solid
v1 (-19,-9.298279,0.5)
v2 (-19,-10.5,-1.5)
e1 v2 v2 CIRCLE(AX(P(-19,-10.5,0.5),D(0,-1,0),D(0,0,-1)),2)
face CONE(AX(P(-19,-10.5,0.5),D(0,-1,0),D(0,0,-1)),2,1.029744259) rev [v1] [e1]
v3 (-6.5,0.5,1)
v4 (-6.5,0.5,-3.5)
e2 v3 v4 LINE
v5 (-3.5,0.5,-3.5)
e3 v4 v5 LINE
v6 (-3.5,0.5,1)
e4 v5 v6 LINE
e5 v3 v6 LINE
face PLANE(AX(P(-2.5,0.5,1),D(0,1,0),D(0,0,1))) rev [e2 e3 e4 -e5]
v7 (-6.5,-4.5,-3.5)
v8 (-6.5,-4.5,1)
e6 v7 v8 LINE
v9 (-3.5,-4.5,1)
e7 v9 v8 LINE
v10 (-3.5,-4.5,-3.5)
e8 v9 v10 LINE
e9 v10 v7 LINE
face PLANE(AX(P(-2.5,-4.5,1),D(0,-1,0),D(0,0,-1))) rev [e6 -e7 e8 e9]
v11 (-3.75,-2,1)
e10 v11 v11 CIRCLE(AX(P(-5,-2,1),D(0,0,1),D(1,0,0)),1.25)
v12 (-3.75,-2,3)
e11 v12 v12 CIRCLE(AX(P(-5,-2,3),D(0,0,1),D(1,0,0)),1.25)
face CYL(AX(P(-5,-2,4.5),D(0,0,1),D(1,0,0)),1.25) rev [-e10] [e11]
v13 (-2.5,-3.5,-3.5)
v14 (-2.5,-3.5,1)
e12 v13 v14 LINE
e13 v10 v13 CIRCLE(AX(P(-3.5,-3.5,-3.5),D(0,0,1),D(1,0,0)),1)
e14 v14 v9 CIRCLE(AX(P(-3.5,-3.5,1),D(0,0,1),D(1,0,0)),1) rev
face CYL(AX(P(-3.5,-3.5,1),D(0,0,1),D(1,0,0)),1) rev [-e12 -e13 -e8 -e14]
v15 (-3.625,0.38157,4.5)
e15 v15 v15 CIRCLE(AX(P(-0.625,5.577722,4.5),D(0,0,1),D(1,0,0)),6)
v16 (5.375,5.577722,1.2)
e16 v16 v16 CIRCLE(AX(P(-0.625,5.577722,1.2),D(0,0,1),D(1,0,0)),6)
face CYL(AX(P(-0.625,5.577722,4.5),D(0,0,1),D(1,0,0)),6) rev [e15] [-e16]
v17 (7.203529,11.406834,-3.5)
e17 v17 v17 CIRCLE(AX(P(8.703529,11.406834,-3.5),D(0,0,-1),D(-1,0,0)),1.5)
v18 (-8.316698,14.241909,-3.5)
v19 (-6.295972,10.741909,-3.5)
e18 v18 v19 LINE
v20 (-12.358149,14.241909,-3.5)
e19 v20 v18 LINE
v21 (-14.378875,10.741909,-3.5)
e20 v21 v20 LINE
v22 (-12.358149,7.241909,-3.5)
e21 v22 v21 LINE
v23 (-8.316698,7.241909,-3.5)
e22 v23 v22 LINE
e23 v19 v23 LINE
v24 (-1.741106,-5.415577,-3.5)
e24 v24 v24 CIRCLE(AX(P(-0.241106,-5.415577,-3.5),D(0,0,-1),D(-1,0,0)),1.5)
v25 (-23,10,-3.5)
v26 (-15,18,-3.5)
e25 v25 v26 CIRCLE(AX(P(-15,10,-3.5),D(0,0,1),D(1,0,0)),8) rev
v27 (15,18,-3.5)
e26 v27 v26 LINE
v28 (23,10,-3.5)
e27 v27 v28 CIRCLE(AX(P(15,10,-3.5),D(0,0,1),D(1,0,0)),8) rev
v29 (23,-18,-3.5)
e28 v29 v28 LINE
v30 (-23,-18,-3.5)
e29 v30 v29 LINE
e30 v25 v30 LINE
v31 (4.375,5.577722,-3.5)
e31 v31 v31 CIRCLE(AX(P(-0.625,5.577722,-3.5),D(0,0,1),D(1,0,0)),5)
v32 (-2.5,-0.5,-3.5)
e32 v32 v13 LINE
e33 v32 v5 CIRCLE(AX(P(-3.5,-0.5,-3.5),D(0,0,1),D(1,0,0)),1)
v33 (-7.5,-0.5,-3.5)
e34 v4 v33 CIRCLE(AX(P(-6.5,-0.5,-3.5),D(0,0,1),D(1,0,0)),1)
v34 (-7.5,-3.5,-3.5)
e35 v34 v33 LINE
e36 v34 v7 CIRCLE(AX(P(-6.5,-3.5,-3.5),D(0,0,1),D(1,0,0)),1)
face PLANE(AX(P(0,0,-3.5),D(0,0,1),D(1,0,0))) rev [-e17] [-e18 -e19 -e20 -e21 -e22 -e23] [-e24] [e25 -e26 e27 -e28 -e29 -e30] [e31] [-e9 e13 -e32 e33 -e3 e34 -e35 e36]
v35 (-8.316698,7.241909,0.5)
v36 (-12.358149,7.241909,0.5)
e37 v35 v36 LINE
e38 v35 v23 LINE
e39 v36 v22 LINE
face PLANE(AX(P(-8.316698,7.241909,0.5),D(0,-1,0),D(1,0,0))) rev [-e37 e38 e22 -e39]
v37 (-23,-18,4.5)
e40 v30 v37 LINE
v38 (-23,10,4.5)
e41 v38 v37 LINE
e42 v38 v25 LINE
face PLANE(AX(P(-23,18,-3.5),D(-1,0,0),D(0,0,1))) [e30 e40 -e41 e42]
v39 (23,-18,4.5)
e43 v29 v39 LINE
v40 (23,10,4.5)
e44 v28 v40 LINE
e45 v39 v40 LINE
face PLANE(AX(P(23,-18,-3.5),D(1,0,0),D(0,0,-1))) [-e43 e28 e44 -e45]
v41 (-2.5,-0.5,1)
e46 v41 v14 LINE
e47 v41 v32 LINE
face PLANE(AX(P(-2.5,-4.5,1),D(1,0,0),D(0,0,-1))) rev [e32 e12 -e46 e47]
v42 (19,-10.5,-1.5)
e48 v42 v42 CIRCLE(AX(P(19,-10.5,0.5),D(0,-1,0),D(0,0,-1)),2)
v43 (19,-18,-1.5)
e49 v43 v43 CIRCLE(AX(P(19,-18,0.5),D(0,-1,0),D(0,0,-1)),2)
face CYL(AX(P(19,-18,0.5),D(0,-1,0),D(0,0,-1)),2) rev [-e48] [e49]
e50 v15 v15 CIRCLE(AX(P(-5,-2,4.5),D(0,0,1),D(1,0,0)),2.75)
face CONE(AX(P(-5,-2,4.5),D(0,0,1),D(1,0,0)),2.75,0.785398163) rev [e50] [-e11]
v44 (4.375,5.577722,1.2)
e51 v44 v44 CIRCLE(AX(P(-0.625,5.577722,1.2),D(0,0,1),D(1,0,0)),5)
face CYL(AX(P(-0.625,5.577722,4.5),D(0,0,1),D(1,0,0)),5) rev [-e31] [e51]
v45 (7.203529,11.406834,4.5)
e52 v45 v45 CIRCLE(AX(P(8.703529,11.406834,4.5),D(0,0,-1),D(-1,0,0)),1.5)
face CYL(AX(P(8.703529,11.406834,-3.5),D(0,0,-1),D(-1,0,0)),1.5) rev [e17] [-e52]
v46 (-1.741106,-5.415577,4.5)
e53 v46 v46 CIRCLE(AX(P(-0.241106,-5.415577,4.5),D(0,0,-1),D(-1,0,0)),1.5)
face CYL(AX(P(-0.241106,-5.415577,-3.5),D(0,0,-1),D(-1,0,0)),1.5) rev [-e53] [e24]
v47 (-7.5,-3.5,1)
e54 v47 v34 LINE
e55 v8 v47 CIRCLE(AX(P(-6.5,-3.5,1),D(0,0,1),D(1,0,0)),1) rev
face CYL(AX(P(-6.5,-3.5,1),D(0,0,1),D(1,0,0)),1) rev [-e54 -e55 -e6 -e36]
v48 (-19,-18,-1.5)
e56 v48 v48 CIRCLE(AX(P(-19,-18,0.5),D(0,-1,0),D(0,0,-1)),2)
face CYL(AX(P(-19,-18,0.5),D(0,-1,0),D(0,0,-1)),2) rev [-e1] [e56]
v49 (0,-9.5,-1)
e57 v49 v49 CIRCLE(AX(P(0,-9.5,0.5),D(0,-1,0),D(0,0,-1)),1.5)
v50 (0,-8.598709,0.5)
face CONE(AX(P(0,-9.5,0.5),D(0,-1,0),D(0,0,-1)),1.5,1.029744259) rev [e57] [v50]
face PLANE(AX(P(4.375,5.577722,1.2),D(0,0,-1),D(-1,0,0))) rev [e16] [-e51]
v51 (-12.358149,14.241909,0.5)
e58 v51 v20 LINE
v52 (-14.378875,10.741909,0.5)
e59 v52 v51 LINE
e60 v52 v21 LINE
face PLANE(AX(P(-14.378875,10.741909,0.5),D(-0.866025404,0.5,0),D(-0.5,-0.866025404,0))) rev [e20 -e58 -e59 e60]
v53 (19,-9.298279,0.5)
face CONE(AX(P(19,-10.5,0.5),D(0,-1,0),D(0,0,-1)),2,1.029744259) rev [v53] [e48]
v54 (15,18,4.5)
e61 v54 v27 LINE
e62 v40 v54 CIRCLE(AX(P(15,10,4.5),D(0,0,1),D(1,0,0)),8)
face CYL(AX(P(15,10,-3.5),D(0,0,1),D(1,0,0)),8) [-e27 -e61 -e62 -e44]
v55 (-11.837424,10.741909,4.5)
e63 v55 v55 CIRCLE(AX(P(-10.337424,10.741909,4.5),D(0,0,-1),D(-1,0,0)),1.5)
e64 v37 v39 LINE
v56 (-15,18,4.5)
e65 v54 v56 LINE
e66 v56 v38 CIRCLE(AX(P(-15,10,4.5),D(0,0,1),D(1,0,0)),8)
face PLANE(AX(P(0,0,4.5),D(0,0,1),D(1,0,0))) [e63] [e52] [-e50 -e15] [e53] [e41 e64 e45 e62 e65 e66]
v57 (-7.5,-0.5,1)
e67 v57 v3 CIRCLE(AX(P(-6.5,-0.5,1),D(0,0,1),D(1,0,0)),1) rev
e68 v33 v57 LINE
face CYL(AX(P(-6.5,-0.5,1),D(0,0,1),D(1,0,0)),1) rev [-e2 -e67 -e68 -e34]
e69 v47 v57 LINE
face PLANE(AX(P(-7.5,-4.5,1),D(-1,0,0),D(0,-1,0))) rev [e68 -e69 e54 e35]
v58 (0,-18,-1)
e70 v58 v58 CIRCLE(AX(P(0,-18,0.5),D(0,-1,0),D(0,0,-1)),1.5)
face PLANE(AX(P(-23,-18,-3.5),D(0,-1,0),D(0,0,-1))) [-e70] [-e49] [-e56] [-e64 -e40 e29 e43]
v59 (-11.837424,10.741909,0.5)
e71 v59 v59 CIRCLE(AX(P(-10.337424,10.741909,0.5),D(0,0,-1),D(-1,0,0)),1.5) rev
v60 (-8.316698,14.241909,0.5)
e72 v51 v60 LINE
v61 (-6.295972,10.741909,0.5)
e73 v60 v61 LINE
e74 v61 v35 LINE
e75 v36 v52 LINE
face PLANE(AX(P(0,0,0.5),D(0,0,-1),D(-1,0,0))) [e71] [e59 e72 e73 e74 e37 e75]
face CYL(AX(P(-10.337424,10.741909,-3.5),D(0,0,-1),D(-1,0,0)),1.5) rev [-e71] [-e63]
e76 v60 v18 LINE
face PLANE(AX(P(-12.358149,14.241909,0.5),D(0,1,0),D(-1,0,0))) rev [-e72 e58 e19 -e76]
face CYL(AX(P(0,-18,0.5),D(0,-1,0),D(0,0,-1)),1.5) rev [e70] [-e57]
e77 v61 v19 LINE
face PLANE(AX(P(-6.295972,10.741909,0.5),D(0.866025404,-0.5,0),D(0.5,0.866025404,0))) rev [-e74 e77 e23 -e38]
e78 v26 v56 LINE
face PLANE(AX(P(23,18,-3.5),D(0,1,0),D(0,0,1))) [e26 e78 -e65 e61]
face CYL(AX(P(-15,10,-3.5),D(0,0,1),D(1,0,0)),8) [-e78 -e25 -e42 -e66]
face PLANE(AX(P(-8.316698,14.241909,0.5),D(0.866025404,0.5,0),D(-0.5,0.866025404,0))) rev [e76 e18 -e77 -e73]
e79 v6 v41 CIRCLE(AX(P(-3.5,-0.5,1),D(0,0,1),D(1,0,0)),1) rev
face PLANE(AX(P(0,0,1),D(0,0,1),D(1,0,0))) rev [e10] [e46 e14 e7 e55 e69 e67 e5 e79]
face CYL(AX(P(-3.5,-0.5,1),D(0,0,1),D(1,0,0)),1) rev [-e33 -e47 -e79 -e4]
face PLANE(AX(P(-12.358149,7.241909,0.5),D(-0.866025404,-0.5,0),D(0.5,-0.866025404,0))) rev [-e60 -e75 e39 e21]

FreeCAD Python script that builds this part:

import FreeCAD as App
import Part
import Sketcher
from FreeCAD import Vector
Q = App.Units.Quantity


def edges_at(feature, points):
    """Names of the edges that pass closest to the given points."""
    edges = feature.Shape.Edges
    near = lambda p: min(range(len(edges)), key=lambda i: edges[i].distToShape(Part.Vertex(*p))[0])
    return sorted({f"Edge{near(p) + 1}" for p in points})

doc = App.newDocument("Part")
body = doc.addObject("PartDesign::Body", "Body")

# Sketch on XY plane
sketch1 = body.newObject("Sketcher::SketchObject", "Sketch")
sketch1.AttachmentSupport = (doc.getObject("XY_Plane"), [""])
sketch1.MapMode = "FlatFace"
sketch1.AttachmentOffset = App.Placement(Vector(0, 0, 4.5), App.Rotation())
sketch1.addGeometry(Part.LineSegment(Vector(-23, 18, 0), Vector(-23, -18, 0)), False)
sketch1.addGeometry(Part.LineSegment(Vector(-23, -18, 0), Vector(23, -18, 0)), False)
sketch1.addGeometry(Part.LineSegment(Vector(23, -18, 0), Vector(23, 18, 0)), False)
sketch1.addGeometry(Part.LineSegment(Vector(23, 18, 0), Vector(-23, 18, 0)), False)
sketch1.addConstraint(Sketcher.Constraint("Coincident", 0, 2, 1, 1))
sketch1.addConstraint(Sketcher.Constraint("Coincident", 1, 2, 2, 1))
sketch1.addConstraint(Sketcher.Constraint("Coincident", 2, 2, 3, 1))
sketch1.addConstraint(Sketcher.Constraint("Coincident", 3, 2, 0, 1))
sketch1.addConstraint(Sketcher.Constraint("Vertical", 0))
sketch1.addConstraint(Sketcher.Constraint("Horizontal", 1))
sketch1.addConstraint(Sketcher.Constraint("Vertical", 2))
sketch1.addConstraint(Sketcher.Constraint("Horizontal", 3))
sketch1.addConstraint(Sketcher.Constraint("Symmetric", 0, 2, 2, 2, -1, 1))
sketch1.addConstraint(Sketcher.Constraint("DistanceX", 1, 1, 1, 2, Q("46 mm")))
sketch1.addConstraint(Sketcher.Constraint("DistanceY", 0, 2, 0, 1, Q("36 mm")))
pad1 = body.newObject("PartDesign::Pad", "Pad")
pad1.Profile = sketch1
pad1.Length = 8
pad1.Reversed = True

# Sketch on XZ plane
sketch2 = body.newObject("Sketcher::SketchObject", "Sketch001")
sketch2.AttachmentSupport = (doc.getObject("XZ_Plane"), [""])
sketch2.MapMode = "FlatFace"
sketch2.AttachmentOffset = App.Placement(Vector(0, 0, 18), App.Rotation())
sketch2.addGeometry(Part.Circle(Vector(0, 0.5, 0), Vector(0, 0, 1), 1.5), False)
sketch2.addConstraint(Sketcher.Constraint("PointOnObject", 0, 3, -2))
sketch2.addConstraint(Sketcher.Constraint("Diameter", 0, Q("3 mm")))
sketch2.addConstraint(Sketcher.Constraint("DistanceY", -1, 1, 0, 3, Q("0.5 mm")))
doc.recompute()
hole = body.newObject("PartDesign::Hole", "Hole")
hole.Profile = sketch2
hole.ThreadType = "None"
hole.Diameter = 3
hole.DepthType = "Dimension"
hole.Depth = 8.5
hole.DrillPoint = "Angled"
hole.DrillPointAngle = 118

# Sketch on XZ plane
sketch3 = body.newObject("Sketcher::SketchObject", "Sketch002")
sketch3.AttachmentSupport = (doc.getObject("XZ_Plane"), [""])
sketch3.MapMode = "FlatFace"
sketch3.AttachmentOffset = App.Placement(Vector(0, 0, 18), App.Rotation())
sketch3.addGeometry(Part.Circle(Vector(-19, 0.5, 0), Vector(0, 0, 1), 2), False)
sketch3.addGeometry(Part.Circle(Vector(19, 0.5, 0), Vector(0, 0, 1), 2), False)
sketch3.addConstraint(Sketcher.Constraint("Equal", 0, 1))
sketch3.addConstraint(Sketcher.Constraint("Symmetric", 0, 3, 1, 3, -2))
sketch3.addConstraint(Sketcher.Constraint("Diameter", 0, Q("4 mm")))
sketch3.addConstraint(Sketcher.Constraint("DistanceX", 0, 3, -1, 1, Q("19 mm")))
sketch3.addConstraint(Sketcher.Constraint("DistanceY", -1, 1, 0, 3, Q("0.5 mm")))
doc.recompute()
hole2 = body.newObject("PartDesign::Hole", "Hole001")
hole2.Profile = sketch3
hole2.ThreadType = "None"
hole2.Diameter = 4
hole2.DepthType = "Dimension"
hole2.Depth = 7.5
hole2.DrillPoint = "Angled"
hole2.DrillPointAngle = 118
doc.recompute()

fillet = body.newObject("PartDesign::Fillet", "Fillet")
fillet.Base = (hole2, edges_at(hole2, [(-23, 18, 0.5), (23, 18, 0.5)]))
fillet.Radius = 8

# Sketch on XY plane
sketch4 = body.newObject("Sketcher::SketchObject", "Sketch003")
sketch4.AttachmentSupport = (doc.getObject("XY_Plane"), [""])
sketch4.MapMode = "FlatFace"
sketch4.AttachmentOffset = App.Placement(Vector(0, 0, -3.5), App.Rotation())
sketch4.addGeometry(Part.LineSegment(Vector(-2, 0, 0), Vector(-2, -4, 0)), False)
sketch4.addGeometry(Part.LineSegment(Vector(-2, -4, 0), Vector(-8, -4, 0)), False)
sketch4.addGeometry(Part.LineSegment(Vector(-8, -4, 0), Vector(-8, 0, 0)), False)
sketch4.addGeometry(Part.LineSegment(Vector(-8, 0, 0), Vector(-2, 0, 0)), False)
sketch4.addConstraint(Sketcher.Constraint("Coincident", 0, 2, 1, 1))
sketch4.addConstraint(Sketcher.Constraint("Coincident", 1, 2, 2, 1))
sketch4.addConstraint(Sketcher.Constraint("Coincident", 2, 2, 3, 1))
sketch4.addConstraint(Sketcher.Constraint("Coincident", 3, 2, 0, 1))
sketch4.addConstraint(Sketcher.Constraint("Vertical", 0))
sketch4.addConstraint(Sketcher.Constraint("Horizontal", 1))
sketch4.addConstraint(Sketcher.Constraint("Vertical", 2))
sketch4.addConstraint(Sketcher.Constraint("Horizontal", 3))
sketch4.addConstraint(Sketcher.Constraint("Equal", 3, 0))
sketch4.addConstraint(Sketcher.Constraint("DistanceX", 1, 2, 1, 1, Q("5 mm")))
sketch4.addConstraint(Sketcher.Constraint("DistanceX", 0, 2, -1, 1, Q("2.5 mm")))
sketch4.addConstraint(Sketcher.Constraint("DistanceY", 0, 2, -1, 1, Q("4.5 mm")))
pocket1 = body.newObject("PartDesign::Pocket", "Pocket")
pocket1.Profile = sketch4
pocket1.Length = 4.5
pocket1.Reversed = True

# Sketch on XY plane
sketch5 = body.newObject("Sketcher::SketchObject", "Sketch004")
sketch5.AttachmentSupport = (doc.getObject("XY_Plane"), [""])
sketch5.MapMode = "FlatFace"
sketch5.AttachmentOffset = App.Placement(Vector(0, 0, 4.5), App.Rotation())
sketch5.addGeometry(Part.Circle(Vector(-5, -2, 0), Vector(0, 0, 1), 1.2), False)
sketch5.addConstraint(Sketcher.Constraint("Diameter", 0, Q("2.5 mm")))
sketch5.addConstraint(Sketcher.Constraint("DistanceX", 0, 3, -1, 1, Q("5 mm")))
sketch5.addConstraint(Sketcher.Constraint("DistanceY", 0, 3, -1, 1, Q("2 mm")))
doc.recompute()
hole3 = body.newObject("PartDesign::Hole", "Hole002")
hole3.Profile = sketch5
hole3.ThreadType = "None"
hole3.Diameter = 2.5
hole3.DepthType = "Dimension"
hole3.Depth = 9.5
hole3.DrillPoint = "Angled"
hole3.DrillPointAngle = 118
hole3.HoleCutType = "Countersink"
hole3.HoleCutDiameter = 5.5
hole3.HoleCutCountersinkAngle = 90

# Sketch on XY plane
sketch6 = body.newObject("Sketcher::SketchObject", "Sketch005")
sketch6.AttachmentSupport = (doc.getObject("XY_Plane"), [""])
sketch6.MapMode = "FlatFace"
sketch6.AttachmentOffset = App.Placement(Vector(0, 0, 4.5), App.Rotation())
sketch6.addGeometry(Part.Circle(Vector(-1, 6, 0), Vector(0, 0, 1), 5), False)
sketch6.addConstraint(Sketcher.Constraint("Diameter", 0, Q("10 mm")))
sketch6.addConstraint(Sketcher.Constraint("DistanceX", 0, 3, -1, 1, Q("0.625 mm")))
sketch6.addConstraint(Sketcher.Constraint("DistanceY", -1, 1, 0, 3, Q("5.577722 mm")))
doc.recompute()
hole4 = body.newObject("PartDesign::Hole", "Hole003")
hole4.Profile = sketch6
hole4.ThreadType = "None"
hole4.Diameter = 10
hole4.DepthType = "ThroughAll"
hole4.HoleCutType = "Counterbore"
hole4.HoleCutDiameter = 12
hole4.HoleCutDepth = 3.3

# Sketch on XY plane
sketch7 = body.newObject("Sketcher::SketchObject", "Sketch006")
sketch7.AttachmentSupport = (doc.getObject("XY_Plane"), [""])
sketch7.MapMode = "FlatFace"
sketch7.AttachmentOffset = App.Placement(Vector(0, 0, -3.5), App.Rotation())
sketch7.addGeometry(Part.Circle(Vector(8.7, 11.4, 0), Vector(0, 0, 1), 1.5), False)
sketch7.addGeometry(Part.Circle(Vector(-10.3, 10.7, 0), Vector(0, 0, 1), 1.5), False)
sketch7.addGeometry(Part.Circle(Vector(-0.2, -5.4, 0), Vector(0, 0, 1), 1.5), False)
sketch7.addConstraint(Sketcher.Constraint("Equal", 0, 1))
sketch7.addConstraint(Sketcher.Constraint("Equal", 1, 2))
sketch7.addConstraint(Sketcher.Constraint("Diameter", 0, Q("3 mm")))
sketch7.addConstraint(Sketcher.Constraint("DistanceX", -1, 1, 0, 3, Q("8.703529 mm")))
sketch7.addConstraint(Sketcher.Constraint("DistanceY", -1, 1, 1, 3, Q("10.741909 mm")))
sketch7.addConstraint(Sketcher.Constraint("DistanceY", 2, 3, 0, 3, Q("16.822411 mm")))
sketch7.addConstraint(Sketcher.Constraint("DistanceY", -1, 1, 0, 3, Q("11.406834 mm")))
sketch7.addConstraint(Sketcher.Constraint("DistanceX", 1, 3, -1, 1, Q("10.337424 mm")))
sketch7.addConstraint(Sketcher.Constraint("DistanceX", 2, 3, -1, 1, Q("0.241106 mm")))
doc.recompute()
hole5 = body.newObject("PartDesign::Hole", "Hole004")
hole5.Profile = sketch7
hole5.ThreadType = "None"
hole5.Diameter = 3
hole5.DepthType = "ThroughAll"
hole5.Reversed = True
doc.recompute()

fillet2 = body.newObject("PartDesign::Fillet", "Fillet001")
fillet2.Base = (hole5, edges_at(hole5, [
    (-7.5, 0.5, -1.25),
    (-7.5, -4.5, -1.25),
    (-2.5, -4.5, -1.25),
    (-2.5, 0.5, -1.25),
]))
fillet2.Radius = 1

# Sketch on XY plane
sketch8 = body.newObject("Sketcher::SketchObject", "Sketch007")
sketch8.AttachmentSupport = (doc.getObject("XY_Plane"), [""])
sketch8.MapMode = "FlatFace"
sketch8.AttachmentOffset = App.Placement(Vector(0, 0, -3.5), App.Rotation())
sketch8.addGeometry(Part.LineSegment(Vector(-14.4, 10.7, 0), Vector(-12.4, 14.2, 0)), False)
sketch8.addGeometry(Part.LineSegment(Vector(-12.4, 14.2, 0), Vector(-8.3, 14.2, 0)), False)
sketch8.addGeometry(Part.LineSegment(Vector(-8.3, 14.2, 0), Vector(-6.3, 10.7, 0)), False)
sketch8.addGeometry(Part.LineSegment(Vector(-6.3, 10.7, 0), Vector(-8.3, 7.2, 0)), False)
sketch8.addGeometry(Part.LineSegment(Vector(-8.3, 7.2, 0), Vector(-12.4, 7.2, 0)), False)
sketch8.addGeometry(Part.LineSegment(Vector(-12.4, 7.2, 0), Vector(-14.4, 10.7, 0)), False)
sketch8.addConstraint(Sketcher.Constraint("Coincident", 0, 2, 1, 1))
sketch8.addConstraint(Sketcher.Constraint("Coincident", 1, 2, 2, 1))
sketch8.addConstraint(Sketcher.Constraint("Coincident", 2, 2, 3, 1))
sketch8.addConstraint(Sketcher.Constraint("Coincident", 3, 2, 4, 1))
sketch8.addConstraint(Sketcher.Constraint("Coincident", 4, 2, 5, 1))
sketch8.addConstraint(Sketcher.Constraint("Coincident", 5, 2, 0, 1))
sketch8.addConstraint(Sketcher.Constraint("Horizontal", 1))
sketch8.addConstraint(Sketcher.Constraint("Horizontal", 4))
sketch8.addConstraint(Sketcher.Constraint("Parallel", 0, 3))
sketch8.addConstraint(Sketcher.Constraint("Parallel", 2, 5))
sketch8.addConstraint(Sketcher.Constraint("Horizontal", 2, 2, 5, 2))
sketch8.addConstraint(Sketcher.Constraint("Vertical", 1, 2, 3, 2))
sketch8.addConstraint(Sketcher.Constraint("Vertical", 0, 2, 4, 2))
sketch8.addConstraint(Sketcher.Constraint("Angle", 0, Q("60 deg")))
sketch8.addConstraint(Sketcher.Constraint("DistanceY", 3, 2, 1, 2, Q("7 mm")))
sketch8.addConstraint(Sketcher.Constraint("DistanceX", 1, 1, 1, 2, Q("4.041452 mm")))
sketch8.addConstraint(Sketcher.Constraint("DistanceX", 0, 2, -1, 1, Q("12.358149 mm")))
sketch8.addConstraint(Sketcher.Constraint("DistanceY", -1, 1, 0, 2, Q("14.241909 mm")))
pocket2 = body.newObject("PartDesign::Pocket", "Pocket001")
pocket2.Profile = sketch8
pocket2.Length = 4
pocket2.Reversed = True

doc.recompute()
